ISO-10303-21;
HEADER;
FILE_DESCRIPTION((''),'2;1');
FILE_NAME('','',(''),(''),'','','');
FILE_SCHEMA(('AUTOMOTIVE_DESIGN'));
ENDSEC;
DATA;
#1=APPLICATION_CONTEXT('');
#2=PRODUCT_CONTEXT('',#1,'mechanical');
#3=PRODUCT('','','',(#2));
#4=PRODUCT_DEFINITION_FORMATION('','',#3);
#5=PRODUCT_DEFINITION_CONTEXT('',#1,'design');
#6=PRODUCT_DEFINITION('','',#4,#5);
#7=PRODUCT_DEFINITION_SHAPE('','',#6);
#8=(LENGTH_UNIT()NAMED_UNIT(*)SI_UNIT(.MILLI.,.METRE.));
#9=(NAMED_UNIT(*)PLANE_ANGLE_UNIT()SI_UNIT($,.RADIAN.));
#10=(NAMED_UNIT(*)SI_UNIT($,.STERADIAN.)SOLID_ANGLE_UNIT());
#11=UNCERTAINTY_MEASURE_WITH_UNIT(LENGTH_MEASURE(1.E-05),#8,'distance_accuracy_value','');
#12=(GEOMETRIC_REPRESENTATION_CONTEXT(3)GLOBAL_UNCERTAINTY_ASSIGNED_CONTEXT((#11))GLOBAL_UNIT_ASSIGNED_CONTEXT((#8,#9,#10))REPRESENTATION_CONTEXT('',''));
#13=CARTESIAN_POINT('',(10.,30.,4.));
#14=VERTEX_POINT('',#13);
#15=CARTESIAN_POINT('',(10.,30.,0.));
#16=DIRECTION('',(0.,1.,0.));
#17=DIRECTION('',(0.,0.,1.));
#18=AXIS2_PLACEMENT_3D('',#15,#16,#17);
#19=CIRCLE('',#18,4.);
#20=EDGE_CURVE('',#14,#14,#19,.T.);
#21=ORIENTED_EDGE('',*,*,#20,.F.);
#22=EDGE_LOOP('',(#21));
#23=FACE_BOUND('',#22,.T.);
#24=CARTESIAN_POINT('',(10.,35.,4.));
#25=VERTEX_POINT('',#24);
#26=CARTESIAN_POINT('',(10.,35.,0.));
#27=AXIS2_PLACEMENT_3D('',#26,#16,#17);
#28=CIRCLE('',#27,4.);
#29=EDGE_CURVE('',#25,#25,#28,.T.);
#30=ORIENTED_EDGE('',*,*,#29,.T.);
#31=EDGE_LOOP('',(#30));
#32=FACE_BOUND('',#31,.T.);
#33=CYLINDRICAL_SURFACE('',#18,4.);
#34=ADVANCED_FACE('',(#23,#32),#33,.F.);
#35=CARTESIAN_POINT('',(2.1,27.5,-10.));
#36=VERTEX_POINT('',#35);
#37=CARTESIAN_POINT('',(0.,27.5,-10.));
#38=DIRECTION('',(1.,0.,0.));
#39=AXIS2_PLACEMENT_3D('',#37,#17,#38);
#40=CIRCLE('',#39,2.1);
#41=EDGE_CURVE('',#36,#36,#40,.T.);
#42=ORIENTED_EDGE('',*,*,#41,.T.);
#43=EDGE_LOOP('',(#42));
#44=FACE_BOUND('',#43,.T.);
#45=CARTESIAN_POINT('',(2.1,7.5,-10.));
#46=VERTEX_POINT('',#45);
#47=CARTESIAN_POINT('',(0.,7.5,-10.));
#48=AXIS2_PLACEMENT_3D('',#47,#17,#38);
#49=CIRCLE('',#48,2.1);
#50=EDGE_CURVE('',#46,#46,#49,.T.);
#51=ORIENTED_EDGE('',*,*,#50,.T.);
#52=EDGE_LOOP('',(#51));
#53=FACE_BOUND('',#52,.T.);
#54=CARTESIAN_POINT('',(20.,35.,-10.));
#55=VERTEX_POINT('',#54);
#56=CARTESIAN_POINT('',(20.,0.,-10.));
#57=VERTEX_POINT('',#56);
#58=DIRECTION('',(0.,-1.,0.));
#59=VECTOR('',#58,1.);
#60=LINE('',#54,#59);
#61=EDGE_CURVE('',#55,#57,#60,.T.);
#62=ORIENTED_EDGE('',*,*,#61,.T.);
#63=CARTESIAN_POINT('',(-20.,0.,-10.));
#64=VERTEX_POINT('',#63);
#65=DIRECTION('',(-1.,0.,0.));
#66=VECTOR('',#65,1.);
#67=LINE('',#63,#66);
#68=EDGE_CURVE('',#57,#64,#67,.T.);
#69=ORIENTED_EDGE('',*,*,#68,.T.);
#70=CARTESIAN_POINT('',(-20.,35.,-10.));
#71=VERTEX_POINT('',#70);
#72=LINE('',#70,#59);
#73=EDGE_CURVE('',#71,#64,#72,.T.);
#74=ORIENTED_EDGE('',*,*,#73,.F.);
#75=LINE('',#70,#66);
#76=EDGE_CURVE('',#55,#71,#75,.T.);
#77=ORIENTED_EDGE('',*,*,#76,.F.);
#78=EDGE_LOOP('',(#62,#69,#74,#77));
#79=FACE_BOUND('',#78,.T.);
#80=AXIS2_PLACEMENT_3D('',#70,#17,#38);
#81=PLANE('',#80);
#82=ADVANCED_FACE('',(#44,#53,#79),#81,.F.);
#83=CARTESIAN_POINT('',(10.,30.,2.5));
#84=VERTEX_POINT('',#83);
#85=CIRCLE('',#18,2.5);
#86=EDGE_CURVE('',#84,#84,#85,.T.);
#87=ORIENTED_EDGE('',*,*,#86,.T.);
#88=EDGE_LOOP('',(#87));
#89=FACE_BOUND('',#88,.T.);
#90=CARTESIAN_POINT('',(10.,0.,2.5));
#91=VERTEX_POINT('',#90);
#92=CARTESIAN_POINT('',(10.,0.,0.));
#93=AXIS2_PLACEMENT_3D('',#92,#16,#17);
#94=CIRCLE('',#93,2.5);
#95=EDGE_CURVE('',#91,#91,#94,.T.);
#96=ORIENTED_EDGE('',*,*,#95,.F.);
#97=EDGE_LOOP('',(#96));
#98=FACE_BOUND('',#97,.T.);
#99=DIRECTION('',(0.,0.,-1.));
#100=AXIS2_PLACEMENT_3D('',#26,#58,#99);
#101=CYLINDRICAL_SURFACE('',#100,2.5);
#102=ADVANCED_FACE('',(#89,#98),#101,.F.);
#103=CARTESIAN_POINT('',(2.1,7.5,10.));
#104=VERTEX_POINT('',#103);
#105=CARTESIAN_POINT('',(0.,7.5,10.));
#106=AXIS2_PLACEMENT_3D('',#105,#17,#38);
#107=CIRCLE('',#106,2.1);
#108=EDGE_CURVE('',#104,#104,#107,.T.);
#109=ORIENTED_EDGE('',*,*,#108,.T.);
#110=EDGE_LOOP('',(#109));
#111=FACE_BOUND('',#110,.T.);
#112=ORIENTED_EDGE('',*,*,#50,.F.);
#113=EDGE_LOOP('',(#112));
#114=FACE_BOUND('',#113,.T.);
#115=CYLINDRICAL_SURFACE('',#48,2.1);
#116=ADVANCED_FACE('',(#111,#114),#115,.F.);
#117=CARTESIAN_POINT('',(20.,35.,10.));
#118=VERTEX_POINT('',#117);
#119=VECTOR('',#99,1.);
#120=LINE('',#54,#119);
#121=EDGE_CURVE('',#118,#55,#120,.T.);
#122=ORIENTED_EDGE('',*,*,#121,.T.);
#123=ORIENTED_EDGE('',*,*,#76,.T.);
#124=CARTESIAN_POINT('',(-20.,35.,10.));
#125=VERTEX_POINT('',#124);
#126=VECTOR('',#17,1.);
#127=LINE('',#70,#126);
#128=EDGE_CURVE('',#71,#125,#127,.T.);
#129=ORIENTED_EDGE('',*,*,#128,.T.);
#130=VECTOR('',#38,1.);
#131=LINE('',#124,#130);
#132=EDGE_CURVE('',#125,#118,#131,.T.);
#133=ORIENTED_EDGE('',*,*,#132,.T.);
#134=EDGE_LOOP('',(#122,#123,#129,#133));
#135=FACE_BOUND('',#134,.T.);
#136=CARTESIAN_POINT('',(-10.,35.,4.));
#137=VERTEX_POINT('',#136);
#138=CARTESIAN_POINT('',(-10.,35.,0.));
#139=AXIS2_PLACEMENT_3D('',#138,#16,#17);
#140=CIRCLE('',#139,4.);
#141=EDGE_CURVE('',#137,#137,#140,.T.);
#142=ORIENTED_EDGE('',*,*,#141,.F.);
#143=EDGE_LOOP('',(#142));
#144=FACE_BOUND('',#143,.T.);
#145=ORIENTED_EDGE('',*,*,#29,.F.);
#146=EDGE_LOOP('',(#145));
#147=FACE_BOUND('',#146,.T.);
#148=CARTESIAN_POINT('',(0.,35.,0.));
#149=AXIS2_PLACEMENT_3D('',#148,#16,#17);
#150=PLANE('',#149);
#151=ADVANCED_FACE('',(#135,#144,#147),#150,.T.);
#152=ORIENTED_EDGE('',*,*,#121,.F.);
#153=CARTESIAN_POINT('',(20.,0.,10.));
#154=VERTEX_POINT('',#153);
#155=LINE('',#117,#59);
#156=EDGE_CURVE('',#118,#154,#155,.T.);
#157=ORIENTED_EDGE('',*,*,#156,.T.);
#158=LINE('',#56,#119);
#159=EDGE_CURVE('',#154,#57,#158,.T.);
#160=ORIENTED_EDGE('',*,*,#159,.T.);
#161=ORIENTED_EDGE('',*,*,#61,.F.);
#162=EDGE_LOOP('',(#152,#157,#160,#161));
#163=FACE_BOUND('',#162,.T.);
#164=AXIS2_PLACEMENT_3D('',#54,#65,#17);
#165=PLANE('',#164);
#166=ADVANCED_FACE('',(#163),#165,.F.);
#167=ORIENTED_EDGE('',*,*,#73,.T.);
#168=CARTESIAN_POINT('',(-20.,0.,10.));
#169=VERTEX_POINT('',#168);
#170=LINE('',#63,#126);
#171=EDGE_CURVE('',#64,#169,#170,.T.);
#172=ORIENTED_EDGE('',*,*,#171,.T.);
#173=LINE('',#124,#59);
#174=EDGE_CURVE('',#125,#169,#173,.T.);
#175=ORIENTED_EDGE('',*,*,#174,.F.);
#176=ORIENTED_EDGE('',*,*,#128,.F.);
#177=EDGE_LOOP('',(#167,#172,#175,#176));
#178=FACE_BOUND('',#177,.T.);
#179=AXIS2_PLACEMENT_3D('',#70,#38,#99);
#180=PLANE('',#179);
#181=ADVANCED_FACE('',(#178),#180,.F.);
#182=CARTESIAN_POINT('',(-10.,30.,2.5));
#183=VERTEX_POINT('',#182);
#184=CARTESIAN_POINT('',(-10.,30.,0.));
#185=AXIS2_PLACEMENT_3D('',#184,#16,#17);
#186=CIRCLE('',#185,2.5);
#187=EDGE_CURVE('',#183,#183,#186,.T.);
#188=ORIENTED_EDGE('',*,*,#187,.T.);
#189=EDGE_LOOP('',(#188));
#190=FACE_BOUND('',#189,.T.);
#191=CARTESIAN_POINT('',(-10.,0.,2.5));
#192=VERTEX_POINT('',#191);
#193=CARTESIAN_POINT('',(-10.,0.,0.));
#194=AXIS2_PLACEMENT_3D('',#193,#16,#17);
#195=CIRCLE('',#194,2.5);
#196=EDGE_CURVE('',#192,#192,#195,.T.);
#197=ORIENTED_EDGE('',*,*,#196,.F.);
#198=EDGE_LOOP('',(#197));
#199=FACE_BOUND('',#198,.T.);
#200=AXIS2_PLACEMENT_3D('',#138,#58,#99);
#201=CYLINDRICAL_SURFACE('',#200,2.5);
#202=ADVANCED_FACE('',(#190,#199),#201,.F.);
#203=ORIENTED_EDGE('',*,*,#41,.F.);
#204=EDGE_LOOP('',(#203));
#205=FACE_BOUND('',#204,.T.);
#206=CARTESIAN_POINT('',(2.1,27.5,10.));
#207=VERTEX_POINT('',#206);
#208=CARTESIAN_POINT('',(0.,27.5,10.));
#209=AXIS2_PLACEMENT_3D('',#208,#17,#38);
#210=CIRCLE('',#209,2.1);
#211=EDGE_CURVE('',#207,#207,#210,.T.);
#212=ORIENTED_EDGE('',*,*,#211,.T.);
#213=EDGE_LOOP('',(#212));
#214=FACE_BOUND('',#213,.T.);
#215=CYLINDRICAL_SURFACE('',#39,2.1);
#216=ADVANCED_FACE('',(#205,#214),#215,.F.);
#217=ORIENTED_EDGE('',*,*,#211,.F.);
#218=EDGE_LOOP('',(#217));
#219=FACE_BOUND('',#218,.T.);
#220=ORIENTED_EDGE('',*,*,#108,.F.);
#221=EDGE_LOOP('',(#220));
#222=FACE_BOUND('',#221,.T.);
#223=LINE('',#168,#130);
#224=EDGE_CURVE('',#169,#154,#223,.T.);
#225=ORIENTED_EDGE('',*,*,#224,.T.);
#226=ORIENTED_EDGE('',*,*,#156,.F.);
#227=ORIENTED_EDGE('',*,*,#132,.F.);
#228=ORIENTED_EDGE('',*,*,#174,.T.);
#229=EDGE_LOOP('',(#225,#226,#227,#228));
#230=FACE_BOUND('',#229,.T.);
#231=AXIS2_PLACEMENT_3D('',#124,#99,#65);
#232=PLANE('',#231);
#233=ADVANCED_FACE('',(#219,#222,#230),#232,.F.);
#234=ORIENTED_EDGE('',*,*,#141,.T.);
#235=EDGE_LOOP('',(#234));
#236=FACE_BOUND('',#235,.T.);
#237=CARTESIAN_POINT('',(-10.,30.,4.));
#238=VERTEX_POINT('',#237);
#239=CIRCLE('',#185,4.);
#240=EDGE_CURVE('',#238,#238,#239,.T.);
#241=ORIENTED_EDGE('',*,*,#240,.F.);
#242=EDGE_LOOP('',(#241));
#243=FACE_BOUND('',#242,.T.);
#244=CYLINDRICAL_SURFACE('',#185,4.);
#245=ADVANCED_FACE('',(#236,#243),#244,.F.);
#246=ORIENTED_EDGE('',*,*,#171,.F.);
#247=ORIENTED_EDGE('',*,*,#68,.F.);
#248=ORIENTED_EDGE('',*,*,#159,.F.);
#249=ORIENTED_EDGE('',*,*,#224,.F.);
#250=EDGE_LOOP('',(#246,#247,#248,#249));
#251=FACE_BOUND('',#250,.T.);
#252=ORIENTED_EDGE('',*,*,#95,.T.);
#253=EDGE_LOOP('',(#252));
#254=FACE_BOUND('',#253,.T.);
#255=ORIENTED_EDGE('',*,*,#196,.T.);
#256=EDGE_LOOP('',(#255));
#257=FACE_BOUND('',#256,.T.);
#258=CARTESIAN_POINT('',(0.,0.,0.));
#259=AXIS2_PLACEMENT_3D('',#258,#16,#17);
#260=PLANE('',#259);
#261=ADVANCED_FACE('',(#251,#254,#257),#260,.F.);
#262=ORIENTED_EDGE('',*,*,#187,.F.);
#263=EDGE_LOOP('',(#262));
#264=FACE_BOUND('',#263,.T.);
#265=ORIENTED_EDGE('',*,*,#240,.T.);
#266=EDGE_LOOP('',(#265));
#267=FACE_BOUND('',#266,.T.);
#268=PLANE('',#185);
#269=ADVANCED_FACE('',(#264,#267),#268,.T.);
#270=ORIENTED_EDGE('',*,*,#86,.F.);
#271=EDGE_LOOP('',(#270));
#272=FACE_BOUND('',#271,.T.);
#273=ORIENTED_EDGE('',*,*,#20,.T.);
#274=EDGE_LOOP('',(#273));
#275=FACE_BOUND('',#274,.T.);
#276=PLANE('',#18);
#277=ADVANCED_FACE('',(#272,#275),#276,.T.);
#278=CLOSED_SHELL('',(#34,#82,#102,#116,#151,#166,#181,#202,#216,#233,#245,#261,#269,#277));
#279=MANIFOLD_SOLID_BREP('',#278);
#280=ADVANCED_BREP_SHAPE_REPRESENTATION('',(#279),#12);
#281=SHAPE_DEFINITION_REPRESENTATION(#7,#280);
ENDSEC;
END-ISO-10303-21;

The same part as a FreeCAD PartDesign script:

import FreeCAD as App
import Part
import Sketcher

doc = App.newDocument("Part")
body = doc.addObject("PartDesign::Body", "Body")

# Sketch on XZ plane
sketch1 = doc.addObject("Sketcher::SketchObject", "Sketch")
body.addObject(sketch1)
sketch1.AttachmentSupport = (doc.XZ_Plane, [""])
sketch1.MapMode = "FlatFace"
sketch1.addGeometry([
    Part.LineSegment(App.Vector(-20, -10, 0), App.Vector(-20, 10, 0)),  # 0
    Part.LineSegment(App.Vector(-20, 10, 0), App.Vector(20, 10, 0)),  # 1
    Part.LineSegment(App.Vector(20, 10, 0), App.Vector(20, -10, 0)),  # 2
    Part.LineSegment(App.Vector(20, -10, 0), App.Vector(-20, -10, 0)),  # 3
    Part.Circle(App.Vector(-10, 0, 0), App.Vector(0, 0, 1), 2.5),  # 4
    Part.Circle(App.Vector(10, 0, 0), App.Vector(0, 0, 1), 2.5),  # 5
], False)
sketch1.addConstraint([
    Sketcher.Constraint("Coincident", 0, 2, 1, 1),
    Sketcher.Constraint("Coincident", 1, 2, 2, 1),
    Sketcher.Constraint("Coincident", 2, 2, 3, 1),
    Sketcher.Constraint("Coincident", 3, 2, 0, 1),
    Sketcher.Constraint("Vertical", 0),
    Sketcher.Constraint("Horizontal", 1),
    Sketcher.Constraint("Vertical", 2),
    Sketcher.Constraint("Horizontal", 3),
    Sketcher.Constraint("Equal", 4, 5),
    Sketcher.Constraint("Symmetric", 4, 3, 5, 3, -1, 1),
    Sketcher.Constraint("Symmetric", 0, 2, 2, 2, -1, 1),
    Sketcher.Constraint("PointOnObject", 4, 3, -1),
    Sketcher.Constraint("Diameter", 4, 5.0),
    Sketcher.Constraint("DistanceX", 1, 1, 1, 2, 40.0),
    Sketcher.Constraint("DistanceY", 0, 1, 0, 2, 20.0),
    Sketcher.Constraint("DistanceX", 4, 3, -1, 1, 10.0),
])
pad1 = doc.addObject("PartDesign::Pad", "Pad")
body.addObject(pad1)
pad1.Profile = sketch1
pad1.Length = 35
pad1.Reversed = True

# Sketch on XZ plane
sketch2 = doc.addObject("Sketcher::SketchObject", "Sketch001")
body.addObject(sketch2)
sketch2.AttachmentSupport = (doc.XZ_Plane, [""])
sketch2.MapMode = "FlatFace"
sketch2.AttachmentOffset = App.Placement(App.Vector(0, 0, -35), App.Rotation())
sketch2.addGeometry([
    Part.Circle(App.Vector(-10, 0, 0), App.Vector(0, 0, 1), 4),
    Part.Circle(App.Vector(10, 0, 0), App.Vector(0, 0, 1), 4),
], False)
sketch2.addConstraint([
    Sketcher.Constraint("Equal", 0, 1),
    Sketcher.Constraint("Symmetric", 0, 3, 1, 3, -1, 1),
    Sketcher.Constraint("PointOnObject", 0, 3, -1),
    Sketcher.Constraint("Diameter", 0, 8.0),
    Sketcher.Constraint("DistanceX", 0, 3, -1, 1, 10.0),
])
pocket1 = doc.addObject("PartDesign::Pocket", "Pocket")
body.addObject(pocket1)
pocket1.Profile = sketch2
pocket1.Length = 5
pocket1.Reversed = True

# Sketch on XY plane
sketch3 = doc.addObject("Sketcher::SketchObject", "Sketch002")
body.addObject(sketch3)
sketch3.AttachmentSupport = (doc.XY_Plane, [""])
sketch3.MapMode = "FlatFace"
sketch3.AttachmentOffset = App.Placement(App.Vector(0, 0, 10), App.Rotation())
sketch3.addGeometry([
    Part.Circle(App.Vector(0, 27.5, 0), App.Vector(0, 0, 1), 2.1),
    Part.Circle(App.Vector(0, 7.5, 0), App.Vector(0, 0, 1), 2.1),
], False)
sketch3.addConstraint([
    Sketcher.Constraint("Equal", 0, 1),
    Sketcher.Constraint("PointOnObject", 0, 3, -2),
    Sketcher.Constraint("PointOnObject", 1, 3, -2),
    Sketcher.Constraint("Diameter", 0, 4.2),
    Sketcher.Constraint("DistanceY", 1, 3, 0, 3, 20.0),
    Sketcher.Constraint("DistanceY", -1, 1, 0, 3, 27.5),
])
pocket2 = doc.addObject("PartDesign::Pocket", "Pocket001")
body.addObject(pocket2)
pocket2.Profile = sketch3
pocket2.Type = "ThroughAll"

doc.recompute()
